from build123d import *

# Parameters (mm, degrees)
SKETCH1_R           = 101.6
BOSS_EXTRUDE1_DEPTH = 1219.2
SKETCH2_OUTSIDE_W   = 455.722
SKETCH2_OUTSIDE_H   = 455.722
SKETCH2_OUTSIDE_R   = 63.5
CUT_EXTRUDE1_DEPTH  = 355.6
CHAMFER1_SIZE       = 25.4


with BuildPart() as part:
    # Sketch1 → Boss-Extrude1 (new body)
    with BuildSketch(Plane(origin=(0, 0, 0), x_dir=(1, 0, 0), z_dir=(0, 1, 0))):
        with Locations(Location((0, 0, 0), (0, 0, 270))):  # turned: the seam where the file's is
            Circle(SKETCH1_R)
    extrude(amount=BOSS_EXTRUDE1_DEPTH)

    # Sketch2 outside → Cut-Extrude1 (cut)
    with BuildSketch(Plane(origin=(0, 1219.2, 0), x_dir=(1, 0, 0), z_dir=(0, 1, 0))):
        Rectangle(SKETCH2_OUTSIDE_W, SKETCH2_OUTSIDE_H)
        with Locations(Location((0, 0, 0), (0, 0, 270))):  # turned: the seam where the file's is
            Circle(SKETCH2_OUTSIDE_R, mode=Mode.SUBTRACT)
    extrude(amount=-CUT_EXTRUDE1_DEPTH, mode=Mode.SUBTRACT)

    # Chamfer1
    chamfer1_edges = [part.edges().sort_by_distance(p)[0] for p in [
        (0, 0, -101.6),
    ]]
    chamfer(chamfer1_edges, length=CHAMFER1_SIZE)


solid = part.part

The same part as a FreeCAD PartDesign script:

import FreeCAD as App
import Part
import Sketcher
Q = App.Units.Quantity


def edges_at(feature, points):
    """Names of the edges that pass closest to the given points."""
    edges = feature.Shape.Edges
    near = lambda p: min(range(len(edges)), key=lambda i: edges[i].distToShape(Part.Vertex(*p))[0])
    return sorted({f"Edge{near(p) + 1}" for p in points})


def add_polygon(sketch, points):
    """Adds a closed chain of lines whose ends are joined by coincident constraints."""
    first, n = sketch.GeometryCount, len(points)
    for a, b in zip(points, points[1:] + points[:1]):
        sketch.addGeometry(Part.LineSegment(App.Vector(*a, 0), App.Vector(*b, 0)), False)
    for i in range(n):
        sketch.addConstraint(Sketcher.Constraint("Coincident", first + i, 2, first + (i + 1) % n, 1))

doc = App.newDocument("Part")
body = doc.addObject("PartDesign::Body", "Body")

# Sketch on XZ plane
sketch1 = body.newObject("Sketcher::SketchObject", "Sketch")
sketch1.AttachmentSupport = (doc.getObject("XZ_Plane"), [""])
sketch1.MapMode = "FlatFace"
sketch1.addGeometry(Part.Circle(App.Vector(0, 0, 0), App.Vector(0, 0, 1), 102), False)
sketch1.addConstraint(Sketcher.Constraint("Coincident", 0, 3, -1, 1))
sketch1.addConstraint(Sketcher.Constraint("Diameter", 0, Q("8 in")))
pad1 = body.newObject("PartDesign::Pad", "Pad")
pad1.Profile = sketch1
pad1.Length = Q("48 in")
pad1.Reversed = True

# Sketch on XZ plane
sketch2 = body.newObject("Sketcher::SketchObject", "Sketch001")
sketch2.AttachmentSupport = (doc.getObject("XZ_Plane"), [""])
sketch2.MapMode = "FlatFace"
sketch2.AttachmentOffset = App.Placement(App.Vector(0, 0, -48 * 25.4), App.Rotation())
add_polygon(sketch2, [(-228, -228), (-228, 228), (228, 228), (228, -228)])  # lines 0-3
sketch2.addGeometry(Part.Circle(App.Vector(0, 0, 0), App.Vector(0, 0, 1), 64), False)  # 4
sketch2.addConstraint(Sketcher.Constraint("Vertical", 0))
sketch2.addConstraint(Sketcher.Constraint("Horizontal", 1))
sketch2.addConstraint(Sketcher.Constraint("Vertical", 2))
sketch2.addConstraint(Sketcher.Constraint("Horizontal", 3))
sketch2.addConstraint(Sketcher.Constraint("Coincident", 4, 3, -1, 1))
sketch2.addConstraint(Sketcher.Constraint("Symmetric", 0, 2, 2, 2, -1, 1))
sketch2.addConstraint(Sketcher.Constraint("Equal", 3, 0))
sketch2.addConstraint(Sketcher.Constraint("Diameter", 4, Q("5 in")))
sketch2.addConstraint(Sketcher.Constraint("DistanceX", 1, 1, 1, 2, 455.722))
pocket1 = body.newObject("PartDesign::Pocket", "Pocket")
pocket1.Profile = sketch2
pocket1.Length = Q("14 in")
pocket1.Reversed = True
doc.recompute()

chamfer = body.newObject("PartDesign::Chamfer", "Chamfer")
chamfer.Base = (pocket1, edges_at(pocket1, [(0, 0, -101.6)]))
chamfer.Size = Q("1 in")

doc.recompute()
